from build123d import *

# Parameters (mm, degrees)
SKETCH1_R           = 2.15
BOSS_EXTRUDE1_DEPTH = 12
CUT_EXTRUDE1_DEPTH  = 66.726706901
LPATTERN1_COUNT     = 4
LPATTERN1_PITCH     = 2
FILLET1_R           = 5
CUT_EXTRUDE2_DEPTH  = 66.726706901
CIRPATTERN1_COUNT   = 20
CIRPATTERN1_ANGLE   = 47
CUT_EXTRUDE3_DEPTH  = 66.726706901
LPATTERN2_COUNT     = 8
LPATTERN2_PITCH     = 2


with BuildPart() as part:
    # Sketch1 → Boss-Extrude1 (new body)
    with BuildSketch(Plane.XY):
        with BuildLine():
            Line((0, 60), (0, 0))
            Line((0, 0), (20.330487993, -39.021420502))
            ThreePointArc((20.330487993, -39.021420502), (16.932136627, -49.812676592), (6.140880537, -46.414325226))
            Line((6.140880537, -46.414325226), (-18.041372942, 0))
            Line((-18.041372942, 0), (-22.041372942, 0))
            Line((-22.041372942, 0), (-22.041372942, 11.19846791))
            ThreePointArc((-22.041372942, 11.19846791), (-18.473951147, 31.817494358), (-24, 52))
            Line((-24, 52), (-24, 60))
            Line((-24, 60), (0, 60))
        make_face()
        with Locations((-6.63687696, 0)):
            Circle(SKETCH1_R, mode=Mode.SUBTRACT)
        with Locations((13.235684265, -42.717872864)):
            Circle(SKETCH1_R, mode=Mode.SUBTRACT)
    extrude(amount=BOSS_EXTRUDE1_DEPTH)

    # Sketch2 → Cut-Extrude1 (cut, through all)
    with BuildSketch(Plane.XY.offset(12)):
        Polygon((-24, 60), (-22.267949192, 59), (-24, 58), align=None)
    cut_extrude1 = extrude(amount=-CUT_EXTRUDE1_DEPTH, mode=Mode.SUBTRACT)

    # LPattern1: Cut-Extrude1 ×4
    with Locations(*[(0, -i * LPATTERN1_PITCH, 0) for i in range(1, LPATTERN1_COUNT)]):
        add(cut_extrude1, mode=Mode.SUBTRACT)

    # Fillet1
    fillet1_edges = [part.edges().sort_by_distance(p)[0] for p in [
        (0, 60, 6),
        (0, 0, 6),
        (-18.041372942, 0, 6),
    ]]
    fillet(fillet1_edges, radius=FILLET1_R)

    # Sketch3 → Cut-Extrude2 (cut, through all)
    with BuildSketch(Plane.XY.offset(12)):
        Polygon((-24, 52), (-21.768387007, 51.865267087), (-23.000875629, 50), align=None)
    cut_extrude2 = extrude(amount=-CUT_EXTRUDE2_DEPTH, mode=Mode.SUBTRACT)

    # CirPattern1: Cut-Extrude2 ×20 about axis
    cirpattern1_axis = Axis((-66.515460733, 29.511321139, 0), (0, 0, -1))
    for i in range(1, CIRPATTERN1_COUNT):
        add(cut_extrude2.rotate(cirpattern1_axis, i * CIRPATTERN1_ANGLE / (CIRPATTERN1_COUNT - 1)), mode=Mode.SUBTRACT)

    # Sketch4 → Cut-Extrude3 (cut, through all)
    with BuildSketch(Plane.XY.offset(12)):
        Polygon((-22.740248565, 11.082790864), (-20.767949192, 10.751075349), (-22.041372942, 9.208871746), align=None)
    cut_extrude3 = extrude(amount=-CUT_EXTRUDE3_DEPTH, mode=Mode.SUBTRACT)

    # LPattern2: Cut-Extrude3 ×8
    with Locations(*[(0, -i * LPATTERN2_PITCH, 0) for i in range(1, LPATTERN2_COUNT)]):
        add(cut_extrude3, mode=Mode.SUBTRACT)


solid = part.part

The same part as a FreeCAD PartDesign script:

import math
import FreeCAD as App
import Part
import Sketcher
Q = App.Units.Quantity


def edges_at(feature, points):
    """Names of the edges that pass closest to the given points."""
    edges = feature.Shape.Edges
    near = lambda p: min(range(len(edges)), key=lambda i: edges[i].distToShape(Part.Vertex(*p))[0])
    return sorted({f"Edge{near(p) + 1}" for p in points})


def add_polygon(sketch, points):
    """Adds a closed chain of lines whose ends are joined by coincident constraints."""
    first, n = sketch.GeometryCount, len(points)
    for a, b in zip(points, points[1:] + points[:1]):
        sketch.addGeometry(Part.LineSegment(App.Vector(*a, 0), App.Vector(*b, 0)), False)
    for i in range(n):
        sketch.addConstraint(Sketcher.Constraint("Coincident", first + i, 2, first + (i + 1) % n, 1))

doc = App.newDocument("Part")
params = doc.addObject("Spreadsheet::Sheet", "Params")
for row, (alias, value) in enumerate([
    ("sketch1_radius", "8 mm"),
    ("sketch1_diameter", "4.3 mm"),
    ("sketch1_width", "24 mm"),
    ("sketch1_width2", "4 mm"),
    ("sketch1_height", "60 mm"),
    ("pad1_length", "12 mm"),
    ("sketch2_height", "2 mm"),
    ("linearpattern_pitch", "2 mm"),
    ("fillet_radius", "5 mm"),
    ("sketch4_length", "2 mm"),
    ("linearpattern2_pitch", "2 mm"),
], start=1):
    params.set(f"A{row}", alias)
    params.set(f"B{row}", "=" + value)
    params.setAlias(f"B{row}", alias)

body = doc.addObject("PartDesign::Body", "Body")

sketch1 = doc.addObject("Sketcher::SketchObject", "Sketch")
body.addObject(sketch1)
sketch1.AttachmentSupport = (doc.XY_Plane, [""])
sketch1.MapMode = "FlatFace"
sketch1.addGeometry([
    Part.LineSegment(App.Vector(0, 0, 0), App.Vector(0, 60, 0)),
    Part.LineSegment(App.Vector(0, 60, 0), App.Vector(-24, 60, 0)),
    Part.LineSegment(App.Vector(-24, 60, 0), App.Vector(-24, 52, 0)),
    Part.ArcOfCircle(Part.Circle(App.Vector(-66.515461, 29.511321, 0), App.Vector(0, 0, 1), 48.09683), math.radians(-22.380128), math.radians(27.876734)),
    Part.LineSegment(App.Vector(-22.041373, 11.198468, 0), App.Vector(-22.041373, 0, 0)),
    Part.LineSegment(App.Vector(-22.041373, 0, 0), App.Vector(-18.041373, 0, 0)),
    Part.LineSegment(App.Vector(-18.041373, 0, 0), App.Vector(6.140881, -46.414325, 0)),
    Part.ArcOfCircle(Part.Circle(App.Vector(13.235684, -42.717873, 0), App.Vector(0, 0, 1), 8), math.radians(-152.480108), math.radians(27.519892)),
    Part.LineSegment(App.Vector(20.330488, -39.021421, 0), App.Vector(0, 0, 0)),
    Part.Circle(App.Vector(13.235684, -42.717873, 0), App.Vector(0, 0, 1), 2.15),
    Part.Circle(App.Vector(-6.636877, 0, 0), App.Vector(0, 0, 1), 2.15),
], False)
sketch1.addConstraint([
    Sketcher.Constraint("Coincident", 0, 2, 1, 1),
    Sketcher.Constraint("Coincident", 1, 2, 2, 1),
    Sketcher.Constraint("Coincident", 2, 2, 3, 2),
    Sketcher.Constraint("Coincident", 3, 1, 4, 1),
    Sketcher.Constraint("Coincident", 4, 2, 5, 1),
    Sketcher.Constraint("Coincident", 5, 2, 6, 1),
    Sketcher.Constraint("Tangent", 6, 2, 7, 1),
    Sketcher.Constraint("Tangent", 7, 2, 8, 1),
    Sketcher.Constraint("Coincident", 8, 2, 0, 1),
    Sketcher.Constraint("Vertical", 0),
    Sketcher.Constraint("Horizontal", 1),
    Sketcher.Constraint("Vertical", 2),
    Sketcher.Constraint("Vertical", 4),
    Sketcher.Constraint("Horizontal", 5),
    Sketcher.Constraint("Coincident", 8, 2, -1, 1),
    Sketcher.Constraint("Coincident", 9, 3, 7, 3),
    Sketcher.Constraint("Equal", 9, 10),
    Sketcher.Constraint("PointOnObject", 10, 3, -1),
    Sketcher.Constraint("PointOnObject", 4, 2, -1),
    Sketcher.Constraint("Parallel", 6, 8),
    Sketcher.Constraint("Radius", 7, 8.0),
    Sketcher.Constraint("Diameter", 9, 4.3),
    Sketcher.Constraint("DistanceX", 1, 2, 1, 1, 24.0),
    Sketcher.Constraint("DistanceX", 5, 1, 5, 2, 4.0),
    Sketcher.Constraint("DistanceY", 0, 1, 0, 2, 60.0),
    Sketcher.Constraint("DistanceY", 2, 2, 2, 1, 8.0),
    Sketcher.Constraint("Distance", 8, 44.0),
    Sketcher.Constraint("Radius", 3, 48.09683),
    Sketcher.Constraint("DistanceY", 4, 2, 4, 1, 11.198468),
    Sketcher.Constraint("DistanceX", 3, 3, -1, 1, 66.515461),
    Sketcher.Constraint("DistanceX", 10, 3, 7, 3, 19.872561),
])
sketch1.setExpression("Constraints[20]", "Params.sketch1_radius")
sketch1.setExpression("Constraints[21]", "Params.sketch1_diameter")
sketch1.setExpression("Constraints[22]", "Params.sketch1_width")
sketch1.setExpression("Constraints[23]", "Params.sketch1_width2")
sketch1.setExpression("Constraints[24]", "Params.sketch1_height")
pad1 = doc.addObject("PartDesign::Pad", "Pad")
body.addObject(pad1)
pad1.Profile = sketch1
pad1.setExpression("Length", "Params.pad1_length")

sketch2 = doc.addObject("Sketcher::SketchObject", "Sketch001")
body.addObject(sketch2)
sketch2.AttachmentSupport = (doc.XY_Plane, [""])
sketch2.MapMode = "FlatFace"
sketch2.AttachmentOffset = App.Placement(App.Vector(0, 0, 12), App.Rotation())
add_polygon(sketch2, [(-22.267949, 59), (-24, 60), (-24, 58)])
sketch2.addConstraint([
    Sketcher.Constraint("Vertical", 1),
    Sketcher.Constraint("Equal", 0, 2),
    Sketcher.Constraint("DistanceY", 1, 2, 1, 1, 2.0),
    Sketcher.Constraint("Angle", 0, Q("150 deg")),
    Sketcher.Constraint("DistanceX", 0, 2, -1, 1, 24.0),
    Sketcher.Constraint("DistanceY", -1, 1, 0, 2, 60.0),
])
sketch2.setExpression("Constraints[5]", "Params.sketch2_height")
pocket1 = doc.addObject("PartDesign::Pocket", "Pocket")
body.addObject(pocket1)
pocket1.Profile = sketch2
pocket1.Type = "ThroughAll"
doc.recompute()

linearpattern = doc.addObject("PartDesign::LinearPattern", "LinearPattern")
body.addObject(linearpattern)
linearpattern.Originals = [pocket1]
linearpattern.Direction = (doc.Y_Axis, [""])
linearpattern.Mode = "offset"
linearpattern.setExpression("Offset", "Params.linearpattern_pitch")
linearpattern.Occurrences = 4
linearpattern.Reversed = True
body.Tip = linearpattern
doc.recompute()

fillet = doc.addObject("PartDesign::Fillet", "Fillet")
body.addObject(fillet)
fillet.Base = (linearpattern, edges_at(linearpattern, [(0, 60, 6), (0, 0, 6), (-18.041, 0, 6)]))
fillet.setExpression("Radius", "Params.fillet_radius")

sketch3 = doc.addObject("Sketcher::SketchObject", "Sketch002")
body.addObject(sketch3)
sketch3.AttachmentSupport = (doc.XY_Plane, [""])
sketch3.MapMode = "FlatFace"
sketch3.AttachmentOffset = App.Placement(App.Vector(0, 0, 12), App.Rotation())
add_polygon(sketch3, [(-21.768387, 51.865267), (-24, 52), (-23.000876, 50)])
sketch3.addConstraint([
    Sketcher.Constraint("Equal", 0, 1),
    Sketcher.Constraint("Equal", 1, 2),
    Sketcher.Constraint("DistanceX", 0, 2, -1, 1, 24.0),
    Sketcher.Constraint("DistanceY", -1, 1, 0, 2, 52.0),
    Sketcher.Constraint("DistanceY", -1, 1, 1, 2, 50.0),
    Sketcher.Constraint("DistanceX", 1, 2, 2, 2, 1.232489),
])
pocket2 = doc.addObject("PartDesign::Pocket", "Pocket001")
body.addObject(pocket2)
pocket2.Profile = sketch3
pocket2.Type = "ThroughAll"
doc.recompute()

datumline = doc.addObject("PartDesign::Line", "DatumLine")
body.addObject(datumline)
datumline.Placement = App.Placement(App.Vector(-66.515461, 29.511321, 0), App.Rotation(App.Vector(0, 0, 1), App.Vector(0, 0, -1)))
polarpattern = doc.addObject("PartDesign::PolarPattern", "PolarPattern")
body.addObject(polarpattern)
polarpattern.Originals = [pocket2]
polarpattern.Axis = (datumline, [""])
polarpattern.Angle = 47
polarpattern.Occurrences = 20
body.Tip = polarpattern

sketch4 = doc.addObject("Sketcher::SketchObject", "Sketch003")
body.addObject(sketch4)
sketch4.AttachmentSupport = (doc.XY_Plane, [""])
sketch4.MapMode = "FlatFace"
sketch4.AttachmentOffset = App.Placement(App.Vector(0, 0, 12), App.Rotation())
add_polygon(sketch4, [(-20.767949, 10.751075), (-22.740249, 11.082791), (-22.041373, 9.208872)])
sketch4.addConstraint([
    Sketcher.Constraint("Equal", 0, 1),
    Sketcher.Constraint("Equal", 1, 2),
    Sketcher.Constraint("Distance", 0, 2.0),
    Sketcher.Constraint("DistanceX", 0, 2, 2, 2, 1.972299),
    Sketcher.Constraint("DistanceX", 0, 2, -1, 1, 22.740249),
    Sketcher.Constraint("DistanceY", -1, 1, 0, 2, 11.082791),
])
sketch4.setExpression("Constraints[5]", "Params.sketch4_length")
pocket3 = doc.addObject("PartDesign::Pocket", "Pocket002")
body.addObject(pocket3)
pocket3.Profile = sketch4
pocket3.Type = "ThroughAll"
doc.recompute()

linearpattern2 = doc.addObject("PartDesign::LinearPattern", "LinearPattern001")
body.addObject(linearpattern2)
linearpattern2.Originals = [pocket3]
linearpattern2.Direction = (doc.Y_Axis, [""])
linearpattern2.Mode = "offset"
linearpattern2.setExpression("Offset", "Params.linearpattern2_pitch")
linearpattern2.Occurrences = 8
linearpattern2.Reversed = True
body.Tip = linearpattern2

doc.recompute()
